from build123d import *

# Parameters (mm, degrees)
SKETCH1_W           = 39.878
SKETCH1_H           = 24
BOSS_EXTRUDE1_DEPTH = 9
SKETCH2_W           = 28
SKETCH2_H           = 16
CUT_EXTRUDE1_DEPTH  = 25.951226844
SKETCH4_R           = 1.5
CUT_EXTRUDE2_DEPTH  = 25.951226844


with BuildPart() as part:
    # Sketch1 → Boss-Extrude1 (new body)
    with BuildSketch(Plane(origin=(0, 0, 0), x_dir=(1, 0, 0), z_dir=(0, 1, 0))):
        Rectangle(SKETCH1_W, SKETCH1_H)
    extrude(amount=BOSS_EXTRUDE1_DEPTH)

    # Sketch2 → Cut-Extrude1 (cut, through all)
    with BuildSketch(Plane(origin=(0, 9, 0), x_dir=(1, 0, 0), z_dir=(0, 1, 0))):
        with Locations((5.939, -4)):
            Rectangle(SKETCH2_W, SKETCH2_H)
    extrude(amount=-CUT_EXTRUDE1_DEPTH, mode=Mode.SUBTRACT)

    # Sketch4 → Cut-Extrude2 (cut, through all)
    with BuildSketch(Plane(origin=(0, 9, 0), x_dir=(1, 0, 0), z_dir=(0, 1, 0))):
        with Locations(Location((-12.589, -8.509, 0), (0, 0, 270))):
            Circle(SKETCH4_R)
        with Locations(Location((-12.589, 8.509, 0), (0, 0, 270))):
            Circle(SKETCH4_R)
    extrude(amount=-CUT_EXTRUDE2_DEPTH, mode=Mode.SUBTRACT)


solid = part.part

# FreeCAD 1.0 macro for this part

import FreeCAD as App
import Part
import Sketcher

V = App.Vector

doc = App.newDocument("Part")
body = doc.addObject("PartDesign::Body", "Body")

sketch1 = body.newObject("Sketcher::SketchObject", "Sketch")
sketch1.AttachmentSupport = (doc.getObject("XZ_Plane"), [""])
sketch1.MapMode = "FlatFace"
sketch1.addGeometry(Part.LineSegment(V(-20, -12, 0), V(-20, 12, 0)), False)
sketch1.addGeometry(Part.LineSegment(V(-20, 12, 0), V(20, 12, 0)), False)
sketch1.addGeometry(Part.LineSegment(V(20, 12, 0), V(20, -12, 0)), False)
sketch1.addGeometry(Part.LineSegment(V(20, -12, 0), V(-20, -12, 0)), False)
sketch1.addConstraint(Sketcher.Constraint("Coincident", 0, 2, 1, 1))
sketch1.addConstraint(Sketcher.Constraint("Coincident", 1, 2, 2, 1))
sketch1.addConstraint(Sketcher.Constraint("Coincident", 2, 2, 3, 1))
sketch1.addConstraint(Sketcher.Constraint("Coincident", 3, 2, 0, 1))
sketch1.addConstraint(Sketcher.Constraint("Vertical", 0))
sketch1.addConstraint(Sketcher.Constraint("Horizontal", 1))
sketch1.addConstraint(Sketcher.Constraint("Vertical", 2))
sketch1.addConstraint(Sketcher.Constraint("Horizontal", 3))
sketch1.addConstraint(Sketcher.Constraint("Symmetric", 0, 2, 2, 2, -1, 1))
sketch1.addConstraint(Sketcher.Constraint("DistanceY", 0, 1, 0, 2, 24.0))
sketch1.addConstraint(Sketcher.Constraint("DistanceX", 1, 1, 1, 2, 39.878))
pad1 = body.newObject("PartDesign::Pad", "Pad")
pad1.Profile = sketch1
pad1.Length = 9
pad1.Reversed = True

sketch2 = body.newObject("Sketcher::SketchObject", "Sketch001")
sketch2.AttachmentSupport = (doc.getObject("XZ_Plane"), [""])
sketch2.MapMode = "FlatFace"
sketch2.AttachmentOffset = App.Placement(V(0, 0, -9), App.Rotation())
sketch2.addGeometry(Part.LineSegment(V(-8, -4, 0), V(-8, 12, 0)), False)
sketch2.addGeometry(Part.LineSegment(V(-8, 12, 0), V(20, 12, 0)), False)
sketch2.addGeometry(Part.LineSegment(V(20, 12, 0), V(20, -4, 0)), False)
sketch2.addGeometry(Part.LineSegment(V(20, -4, 0), V(-8, -4, 0)), False)
sketch2.addConstraint(Sketcher.Constraint("Coincident", 0, 2, 1, 1))
sketch2.addConstraint(Sketcher.Constraint("Coincident", 1, 2, 2, 1))
sketch2.addConstraint(Sketcher.Constraint("Coincident", 2, 2, 3, 1))
sketch2.addConstraint(Sketcher.Constraint("Coincident", 3, 2, 0, 1))
sketch2.addConstraint(Sketcher.Constraint("Vertical", 0))
sketch2.addConstraint(Sketcher.Constraint("Horizontal", 1))
sketch2.addConstraint(Sketcher.Constraint("Vertical", 2))
sketch2.addConstraint(Sketcher.Constraint("Horizontal", 3))
sketch2.addConstraint(Sketcher.Constraint("DistanceX", 1, 1, 1, 2, 28.0))
sketch2.addConstraint(Sketcher.Constraint("DistanceY", 0, 1, 0, 2, 16.0))
sketch2.addConstraint(Sketcher.Constraint("DistanceY", -1, 1, 0, 2, 12.0))
sketch2.addConstraint(Sketcher.Constraint("DistanceX", 0, 2, -1, 1, 8.061))
pocket1 = body.newObject("PartDesign::Pocket", "Pocket")
pocket1.Profile = sketch2
pocket1.Type = "ThroughAll"
pocket1.Reversed = True

sketch3 = body.newObject("Sketcher::SketchObject", "Sketch002")
sketch3.AttachmentSupport = (doc.getObject("XZ_Plane"), [""])
sketch3.MapMode = "FlatFace"
sketch3.AttachmentOffset = App.Placement(V(0, 0, -9), App.Rotation())
sketch3.addGeometry(Part.Circle(V(-12.6, 8.5, 0), V(0, 0, 1), 1.5), False)
sketch3.addGeometry(Part.Circle(V(-12.6, -8.5, 0), V(0, 0, 1), 1.5), False)
sketch3.addConstraint(Sketcher.Constraint("Equal", 0, 1))
sketch3.addConstraint(Sketcher.Constraint("Symmetric", 0, 3, 1, 3, -1))
sketch3.addConstraint(Sketcher.Constraint("Diameter", 0, 3.0))
sketch3.addConstraint(Sketcher.Constraint("DistanceX", 0, 3, -1, 1, 12.589))
sketch3.addConstraint(Sketcher.Constraint("DistanceY", -1, 1, 0, 3, 8.509))
pocket2 = body.newObject("PartDesign::Pocket", "Pocket001")
pocket2.Profile = sketch3
pocket2.Type = "ThroughAll"
pocket2.Reversed = True

doc.recompute()
